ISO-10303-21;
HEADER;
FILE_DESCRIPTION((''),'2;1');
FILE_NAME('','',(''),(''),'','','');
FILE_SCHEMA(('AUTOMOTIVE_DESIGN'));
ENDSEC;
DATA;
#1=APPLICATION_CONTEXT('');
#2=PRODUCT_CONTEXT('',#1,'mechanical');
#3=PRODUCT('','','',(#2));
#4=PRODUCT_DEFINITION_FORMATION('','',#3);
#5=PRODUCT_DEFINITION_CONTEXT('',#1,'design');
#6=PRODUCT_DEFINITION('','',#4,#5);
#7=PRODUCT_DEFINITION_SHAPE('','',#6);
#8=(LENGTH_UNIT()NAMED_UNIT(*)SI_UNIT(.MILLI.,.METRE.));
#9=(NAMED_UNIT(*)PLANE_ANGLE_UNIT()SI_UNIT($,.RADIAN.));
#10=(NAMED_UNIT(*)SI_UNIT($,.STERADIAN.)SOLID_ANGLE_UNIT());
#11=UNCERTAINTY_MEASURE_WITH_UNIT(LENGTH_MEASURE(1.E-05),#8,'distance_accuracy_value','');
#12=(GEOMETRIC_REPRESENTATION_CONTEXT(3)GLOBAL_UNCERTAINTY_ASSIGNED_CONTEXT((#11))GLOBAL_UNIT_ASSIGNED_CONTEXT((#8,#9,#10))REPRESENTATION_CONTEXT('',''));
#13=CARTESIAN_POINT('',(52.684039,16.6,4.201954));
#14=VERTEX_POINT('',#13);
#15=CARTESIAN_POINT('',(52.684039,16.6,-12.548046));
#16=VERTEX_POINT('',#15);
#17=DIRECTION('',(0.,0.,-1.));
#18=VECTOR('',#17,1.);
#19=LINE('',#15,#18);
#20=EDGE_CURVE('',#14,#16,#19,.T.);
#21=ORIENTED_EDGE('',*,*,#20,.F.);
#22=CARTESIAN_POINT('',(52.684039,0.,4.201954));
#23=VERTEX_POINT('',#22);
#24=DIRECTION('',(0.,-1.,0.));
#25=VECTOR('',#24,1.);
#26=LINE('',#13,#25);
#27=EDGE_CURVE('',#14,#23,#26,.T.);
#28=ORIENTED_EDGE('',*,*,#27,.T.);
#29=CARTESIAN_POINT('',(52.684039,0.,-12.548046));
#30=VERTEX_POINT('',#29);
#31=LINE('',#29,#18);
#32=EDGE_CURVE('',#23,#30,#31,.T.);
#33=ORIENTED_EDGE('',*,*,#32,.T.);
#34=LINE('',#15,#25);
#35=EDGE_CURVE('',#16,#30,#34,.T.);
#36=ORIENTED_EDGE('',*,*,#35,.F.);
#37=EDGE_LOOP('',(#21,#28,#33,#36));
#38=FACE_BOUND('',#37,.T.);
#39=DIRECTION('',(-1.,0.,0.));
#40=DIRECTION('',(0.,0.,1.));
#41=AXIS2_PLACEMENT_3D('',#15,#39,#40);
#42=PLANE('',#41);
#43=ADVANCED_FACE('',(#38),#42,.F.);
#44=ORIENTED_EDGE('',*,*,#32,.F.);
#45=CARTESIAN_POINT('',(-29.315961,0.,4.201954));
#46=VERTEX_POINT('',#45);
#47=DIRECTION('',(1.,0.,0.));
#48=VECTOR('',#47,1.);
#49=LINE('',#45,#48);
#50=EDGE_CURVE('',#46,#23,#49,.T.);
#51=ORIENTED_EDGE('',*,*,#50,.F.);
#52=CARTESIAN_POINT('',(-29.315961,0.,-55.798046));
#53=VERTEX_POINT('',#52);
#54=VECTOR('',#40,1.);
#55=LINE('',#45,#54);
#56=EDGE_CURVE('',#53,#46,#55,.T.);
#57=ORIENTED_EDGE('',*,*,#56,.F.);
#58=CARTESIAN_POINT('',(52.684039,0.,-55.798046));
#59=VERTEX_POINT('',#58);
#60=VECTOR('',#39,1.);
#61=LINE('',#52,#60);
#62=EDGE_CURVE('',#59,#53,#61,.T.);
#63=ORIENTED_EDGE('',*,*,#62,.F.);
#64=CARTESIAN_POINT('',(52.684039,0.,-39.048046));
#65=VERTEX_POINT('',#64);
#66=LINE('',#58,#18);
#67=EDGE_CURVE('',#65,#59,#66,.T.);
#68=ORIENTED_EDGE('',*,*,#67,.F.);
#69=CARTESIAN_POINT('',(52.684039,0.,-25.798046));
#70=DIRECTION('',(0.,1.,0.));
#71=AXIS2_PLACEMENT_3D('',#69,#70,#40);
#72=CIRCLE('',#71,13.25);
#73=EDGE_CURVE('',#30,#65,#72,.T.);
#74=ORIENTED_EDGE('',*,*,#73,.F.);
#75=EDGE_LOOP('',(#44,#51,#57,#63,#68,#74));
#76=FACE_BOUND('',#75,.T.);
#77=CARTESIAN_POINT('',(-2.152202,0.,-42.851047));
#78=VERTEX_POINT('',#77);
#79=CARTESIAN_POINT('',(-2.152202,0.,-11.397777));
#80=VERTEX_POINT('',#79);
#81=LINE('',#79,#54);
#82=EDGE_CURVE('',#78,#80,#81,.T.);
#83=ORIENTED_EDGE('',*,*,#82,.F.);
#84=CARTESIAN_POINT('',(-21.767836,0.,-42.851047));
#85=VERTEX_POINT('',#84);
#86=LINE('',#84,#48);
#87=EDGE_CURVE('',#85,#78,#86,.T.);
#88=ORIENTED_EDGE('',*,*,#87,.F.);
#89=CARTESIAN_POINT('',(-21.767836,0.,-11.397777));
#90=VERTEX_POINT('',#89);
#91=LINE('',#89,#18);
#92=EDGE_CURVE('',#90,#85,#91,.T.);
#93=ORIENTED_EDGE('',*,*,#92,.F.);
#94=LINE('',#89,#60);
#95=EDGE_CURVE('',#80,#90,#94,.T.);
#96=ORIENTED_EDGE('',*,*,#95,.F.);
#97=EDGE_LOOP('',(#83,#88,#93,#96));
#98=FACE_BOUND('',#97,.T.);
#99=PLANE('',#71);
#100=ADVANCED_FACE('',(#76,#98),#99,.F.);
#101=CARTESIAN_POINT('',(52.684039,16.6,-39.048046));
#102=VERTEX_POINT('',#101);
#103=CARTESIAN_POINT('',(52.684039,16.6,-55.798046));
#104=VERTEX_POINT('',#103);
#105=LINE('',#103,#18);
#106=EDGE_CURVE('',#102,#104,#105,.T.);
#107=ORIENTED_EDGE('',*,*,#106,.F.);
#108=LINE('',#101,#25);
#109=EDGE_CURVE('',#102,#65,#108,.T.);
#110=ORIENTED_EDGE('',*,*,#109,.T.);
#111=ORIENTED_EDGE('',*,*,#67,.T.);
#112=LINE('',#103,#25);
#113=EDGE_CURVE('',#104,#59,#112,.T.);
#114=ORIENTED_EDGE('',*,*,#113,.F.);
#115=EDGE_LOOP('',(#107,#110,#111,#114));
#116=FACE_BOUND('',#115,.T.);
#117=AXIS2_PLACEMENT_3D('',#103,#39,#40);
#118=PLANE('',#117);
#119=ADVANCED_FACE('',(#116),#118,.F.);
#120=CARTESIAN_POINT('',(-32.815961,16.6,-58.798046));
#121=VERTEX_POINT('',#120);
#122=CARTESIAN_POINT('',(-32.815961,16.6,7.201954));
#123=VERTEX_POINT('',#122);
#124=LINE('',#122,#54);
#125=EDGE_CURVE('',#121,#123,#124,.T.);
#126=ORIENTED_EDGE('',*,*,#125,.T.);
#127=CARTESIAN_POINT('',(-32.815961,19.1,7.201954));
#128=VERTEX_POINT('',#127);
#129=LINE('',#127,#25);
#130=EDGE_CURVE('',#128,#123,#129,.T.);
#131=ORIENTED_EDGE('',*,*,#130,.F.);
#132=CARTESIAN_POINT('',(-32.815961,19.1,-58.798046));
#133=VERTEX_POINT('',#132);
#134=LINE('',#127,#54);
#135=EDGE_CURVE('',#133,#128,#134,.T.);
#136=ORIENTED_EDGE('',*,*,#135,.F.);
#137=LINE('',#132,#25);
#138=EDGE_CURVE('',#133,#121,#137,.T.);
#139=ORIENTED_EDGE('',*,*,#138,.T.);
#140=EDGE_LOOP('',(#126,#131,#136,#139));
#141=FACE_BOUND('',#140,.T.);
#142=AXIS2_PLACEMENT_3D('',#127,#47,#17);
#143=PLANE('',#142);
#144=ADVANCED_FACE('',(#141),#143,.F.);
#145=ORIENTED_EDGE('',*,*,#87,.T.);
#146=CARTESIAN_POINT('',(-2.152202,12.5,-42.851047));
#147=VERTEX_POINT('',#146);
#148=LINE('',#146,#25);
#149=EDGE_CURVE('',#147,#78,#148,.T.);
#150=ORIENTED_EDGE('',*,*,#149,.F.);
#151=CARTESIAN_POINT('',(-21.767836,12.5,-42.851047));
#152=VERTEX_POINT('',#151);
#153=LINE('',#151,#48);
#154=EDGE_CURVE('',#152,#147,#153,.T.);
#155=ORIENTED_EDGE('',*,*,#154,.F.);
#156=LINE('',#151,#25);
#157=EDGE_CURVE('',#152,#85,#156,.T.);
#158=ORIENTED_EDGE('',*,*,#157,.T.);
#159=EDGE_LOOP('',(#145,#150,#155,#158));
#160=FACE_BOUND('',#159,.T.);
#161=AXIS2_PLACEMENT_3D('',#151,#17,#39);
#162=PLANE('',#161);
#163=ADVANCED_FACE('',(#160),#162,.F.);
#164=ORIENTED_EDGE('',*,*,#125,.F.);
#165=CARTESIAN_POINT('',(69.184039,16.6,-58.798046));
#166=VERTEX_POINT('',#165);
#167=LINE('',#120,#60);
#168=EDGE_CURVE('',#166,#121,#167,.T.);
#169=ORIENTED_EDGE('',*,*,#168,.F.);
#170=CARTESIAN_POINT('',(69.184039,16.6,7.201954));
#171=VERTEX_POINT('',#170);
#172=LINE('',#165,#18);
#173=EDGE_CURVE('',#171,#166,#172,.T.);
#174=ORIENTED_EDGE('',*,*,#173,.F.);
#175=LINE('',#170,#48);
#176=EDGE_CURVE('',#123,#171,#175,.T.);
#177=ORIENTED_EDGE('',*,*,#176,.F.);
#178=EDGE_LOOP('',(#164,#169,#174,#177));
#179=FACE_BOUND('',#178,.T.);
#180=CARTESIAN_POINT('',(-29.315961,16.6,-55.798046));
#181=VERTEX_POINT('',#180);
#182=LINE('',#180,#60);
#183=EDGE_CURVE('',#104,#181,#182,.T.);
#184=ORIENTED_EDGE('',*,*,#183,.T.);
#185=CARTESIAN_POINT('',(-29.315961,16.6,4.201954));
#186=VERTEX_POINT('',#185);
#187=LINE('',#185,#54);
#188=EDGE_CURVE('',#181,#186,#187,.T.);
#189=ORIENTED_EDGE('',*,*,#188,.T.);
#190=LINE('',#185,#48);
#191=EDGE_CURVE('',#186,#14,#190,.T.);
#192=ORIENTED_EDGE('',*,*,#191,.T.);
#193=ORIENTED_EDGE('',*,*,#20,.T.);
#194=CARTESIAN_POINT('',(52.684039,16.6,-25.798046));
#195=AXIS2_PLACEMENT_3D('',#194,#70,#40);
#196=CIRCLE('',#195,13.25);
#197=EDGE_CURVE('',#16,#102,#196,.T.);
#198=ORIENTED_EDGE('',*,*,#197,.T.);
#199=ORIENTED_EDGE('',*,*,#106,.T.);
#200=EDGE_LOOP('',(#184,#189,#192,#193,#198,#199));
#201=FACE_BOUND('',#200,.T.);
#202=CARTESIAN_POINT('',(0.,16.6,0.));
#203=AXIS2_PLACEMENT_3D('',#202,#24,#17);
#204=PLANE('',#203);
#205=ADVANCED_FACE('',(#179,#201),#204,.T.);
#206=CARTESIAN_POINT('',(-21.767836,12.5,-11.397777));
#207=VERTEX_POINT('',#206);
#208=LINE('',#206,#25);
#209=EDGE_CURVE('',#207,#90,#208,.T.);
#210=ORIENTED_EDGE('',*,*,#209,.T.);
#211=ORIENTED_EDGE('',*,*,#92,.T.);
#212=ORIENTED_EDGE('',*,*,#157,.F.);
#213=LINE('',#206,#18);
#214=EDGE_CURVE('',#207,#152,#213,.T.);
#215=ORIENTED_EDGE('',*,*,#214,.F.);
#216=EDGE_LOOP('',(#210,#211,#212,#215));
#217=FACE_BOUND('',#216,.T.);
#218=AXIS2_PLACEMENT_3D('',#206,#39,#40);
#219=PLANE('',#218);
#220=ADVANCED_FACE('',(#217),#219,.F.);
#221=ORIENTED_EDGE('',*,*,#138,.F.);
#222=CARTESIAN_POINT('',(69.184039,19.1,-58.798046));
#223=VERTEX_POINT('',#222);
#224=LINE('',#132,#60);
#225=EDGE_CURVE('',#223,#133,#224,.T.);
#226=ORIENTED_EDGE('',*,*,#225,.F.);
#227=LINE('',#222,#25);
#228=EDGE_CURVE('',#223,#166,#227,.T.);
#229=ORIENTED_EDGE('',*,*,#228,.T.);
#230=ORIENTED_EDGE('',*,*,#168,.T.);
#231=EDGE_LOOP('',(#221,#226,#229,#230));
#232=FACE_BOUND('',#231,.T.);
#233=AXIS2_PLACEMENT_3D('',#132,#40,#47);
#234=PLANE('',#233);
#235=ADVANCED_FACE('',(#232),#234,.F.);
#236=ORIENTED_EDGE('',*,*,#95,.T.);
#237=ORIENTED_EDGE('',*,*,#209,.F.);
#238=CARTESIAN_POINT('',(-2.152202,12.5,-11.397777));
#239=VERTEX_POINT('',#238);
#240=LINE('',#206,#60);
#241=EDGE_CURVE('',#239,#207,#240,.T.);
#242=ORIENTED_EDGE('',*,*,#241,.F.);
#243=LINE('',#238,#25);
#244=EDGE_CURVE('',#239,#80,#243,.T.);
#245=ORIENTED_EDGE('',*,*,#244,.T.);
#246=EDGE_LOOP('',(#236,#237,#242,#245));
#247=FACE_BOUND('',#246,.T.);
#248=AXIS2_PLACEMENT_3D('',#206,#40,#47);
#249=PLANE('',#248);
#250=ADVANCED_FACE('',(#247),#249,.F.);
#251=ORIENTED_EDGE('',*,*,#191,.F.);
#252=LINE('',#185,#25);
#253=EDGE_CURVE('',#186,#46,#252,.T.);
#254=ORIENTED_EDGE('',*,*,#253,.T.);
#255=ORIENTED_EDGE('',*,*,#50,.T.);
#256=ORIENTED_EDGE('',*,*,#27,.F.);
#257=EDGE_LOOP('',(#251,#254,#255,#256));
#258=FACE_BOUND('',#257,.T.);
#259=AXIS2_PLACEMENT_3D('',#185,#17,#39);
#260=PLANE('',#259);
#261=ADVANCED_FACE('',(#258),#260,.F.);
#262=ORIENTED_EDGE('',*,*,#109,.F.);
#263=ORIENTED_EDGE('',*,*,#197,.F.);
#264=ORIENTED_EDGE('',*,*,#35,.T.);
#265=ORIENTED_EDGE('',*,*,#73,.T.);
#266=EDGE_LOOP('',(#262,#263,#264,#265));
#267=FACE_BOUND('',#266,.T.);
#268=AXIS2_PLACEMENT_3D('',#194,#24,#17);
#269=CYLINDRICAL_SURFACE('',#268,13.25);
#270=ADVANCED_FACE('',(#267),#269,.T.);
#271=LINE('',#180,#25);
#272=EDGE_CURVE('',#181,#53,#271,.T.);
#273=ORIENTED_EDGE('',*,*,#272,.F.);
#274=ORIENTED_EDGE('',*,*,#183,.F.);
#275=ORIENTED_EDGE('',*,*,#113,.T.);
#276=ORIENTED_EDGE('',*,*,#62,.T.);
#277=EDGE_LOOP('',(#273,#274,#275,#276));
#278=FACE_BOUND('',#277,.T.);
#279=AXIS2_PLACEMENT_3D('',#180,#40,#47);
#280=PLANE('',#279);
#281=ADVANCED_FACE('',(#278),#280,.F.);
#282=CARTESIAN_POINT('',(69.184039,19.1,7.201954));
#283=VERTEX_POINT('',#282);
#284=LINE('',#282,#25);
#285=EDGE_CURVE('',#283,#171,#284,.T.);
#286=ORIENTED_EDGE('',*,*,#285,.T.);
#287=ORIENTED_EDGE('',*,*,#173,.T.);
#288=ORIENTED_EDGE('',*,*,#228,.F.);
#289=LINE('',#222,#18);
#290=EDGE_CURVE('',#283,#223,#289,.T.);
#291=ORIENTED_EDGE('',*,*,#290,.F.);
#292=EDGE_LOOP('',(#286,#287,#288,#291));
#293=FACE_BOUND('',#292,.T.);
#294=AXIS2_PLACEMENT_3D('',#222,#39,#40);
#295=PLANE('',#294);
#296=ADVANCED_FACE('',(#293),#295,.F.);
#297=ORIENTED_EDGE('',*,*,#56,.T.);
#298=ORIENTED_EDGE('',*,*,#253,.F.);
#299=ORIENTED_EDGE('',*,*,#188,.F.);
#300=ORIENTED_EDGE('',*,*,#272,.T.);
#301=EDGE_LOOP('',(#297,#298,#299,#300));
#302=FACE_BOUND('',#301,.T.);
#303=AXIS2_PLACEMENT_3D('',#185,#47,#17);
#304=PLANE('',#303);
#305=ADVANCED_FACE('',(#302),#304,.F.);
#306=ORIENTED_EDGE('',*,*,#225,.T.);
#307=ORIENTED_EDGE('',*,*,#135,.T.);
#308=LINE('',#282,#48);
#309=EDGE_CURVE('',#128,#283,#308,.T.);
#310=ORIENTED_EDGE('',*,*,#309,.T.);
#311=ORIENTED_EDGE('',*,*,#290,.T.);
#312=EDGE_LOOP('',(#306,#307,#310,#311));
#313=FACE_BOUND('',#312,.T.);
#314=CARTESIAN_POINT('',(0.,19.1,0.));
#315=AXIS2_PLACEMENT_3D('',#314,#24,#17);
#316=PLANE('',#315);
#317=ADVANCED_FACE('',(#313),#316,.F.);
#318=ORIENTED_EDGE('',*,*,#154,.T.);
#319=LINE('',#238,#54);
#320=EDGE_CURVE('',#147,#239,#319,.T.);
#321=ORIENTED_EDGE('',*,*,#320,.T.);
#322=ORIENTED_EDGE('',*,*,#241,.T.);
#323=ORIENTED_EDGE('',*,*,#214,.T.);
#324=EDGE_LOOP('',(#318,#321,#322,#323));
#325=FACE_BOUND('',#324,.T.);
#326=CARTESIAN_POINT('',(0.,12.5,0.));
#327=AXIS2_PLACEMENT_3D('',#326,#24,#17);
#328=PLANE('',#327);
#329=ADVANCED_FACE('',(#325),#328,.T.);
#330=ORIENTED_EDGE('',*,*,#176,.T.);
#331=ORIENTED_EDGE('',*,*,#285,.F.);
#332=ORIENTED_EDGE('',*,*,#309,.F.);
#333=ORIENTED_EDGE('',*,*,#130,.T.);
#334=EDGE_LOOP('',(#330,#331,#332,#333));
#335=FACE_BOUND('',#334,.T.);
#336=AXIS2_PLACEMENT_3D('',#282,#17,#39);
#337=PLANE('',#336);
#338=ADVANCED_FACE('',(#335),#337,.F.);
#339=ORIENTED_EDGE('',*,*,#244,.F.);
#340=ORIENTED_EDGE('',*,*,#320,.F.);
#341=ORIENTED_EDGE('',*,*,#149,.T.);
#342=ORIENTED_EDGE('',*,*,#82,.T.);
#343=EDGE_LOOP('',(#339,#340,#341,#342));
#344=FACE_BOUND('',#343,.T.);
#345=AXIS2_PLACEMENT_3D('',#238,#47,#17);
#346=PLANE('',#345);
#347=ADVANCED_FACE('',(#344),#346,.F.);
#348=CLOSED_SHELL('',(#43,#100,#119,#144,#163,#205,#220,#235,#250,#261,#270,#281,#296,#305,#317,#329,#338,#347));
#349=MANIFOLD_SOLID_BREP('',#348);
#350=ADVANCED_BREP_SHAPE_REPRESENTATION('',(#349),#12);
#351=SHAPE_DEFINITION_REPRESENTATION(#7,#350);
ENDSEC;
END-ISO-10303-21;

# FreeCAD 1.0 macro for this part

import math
import FreeCAD as App
import Part
import Sketcher
from FreeCAD import Vector
Q = App.Units.Quantity


def add_polygon(sketch, points):
    """Adds a closed chain of lines whose ends are joined by coincident constraints."""
    first, n = sketch.GeometryCount, len(points)
    for a, b in zip(points, points[1:] + points[:1]):
        sketch.addGeometry(Part.LineSegment(App.Vector(*a, 0), App.Vector(*b, 0)), False)
    for i in range(n):
        sketch.addConstraint(Sketcher.Constraint("Coincident", first + i, 2, first + (i + 1) % n, 1))

doc = App.newDocument("Part")
params = doc.addObject("Spreadsheet::Sheet", "Params")
for row, (alias, value) in enumerate([
    ("sketch1_width", "82 mm"),
    ("sketch1_height", "60 mm"),
    ("sketch1_radius", "13.25 mm"),
    ("pad1_length", "16.6 mm"),
    ("sketch2_width", "102 mm"),
    ("sketch2_height", "66 mm"),
    ("pad2_length", "2.5 mm"),
    ("pocket1_length", "12.5 mm"),
], start=1):
    params.set(f"A{row}", alias)
    params.set(f"B{row}", "=" + value)
    params.setAlias(f"B{row}", alias)

body = doc.addObject("PartDesign::Body", "Body")

sketch1 = body.newObject("Sketcher::SketchObject", "Sketch")
sketch1.AttachmentSupport = (doc.getObject("XZ_Plane"), [""])
sketch1.MapMode = "FlatFace"
sketch1.addGeometry([
    Part.LineSegment(Vector(-29, 4, 0), Vector(53, 4, 0)),
    Part.LineSegment(Vector(53, 4, 0), Vector(53, -13, 0)),
    Part.ArcOfCircle(Part.Circle(Vector(53, -26, 0), Vector(0, 0, 1), 13), math.radians(-90), math.radians(90)),
    Part.LineSegment(Vector(53, -39, 0), Vector(53, -56, 0)),
    Part.LineSegment(Vector(53, -56, 0), Vector(-29, -56, 0)),
    Part.LineSegment(Vector(-29, -56, 0), Vector(-29, 4, 0)),
], False)
sketch1.addConstraint([
    Sketcher.Constraint("Coincident", 0, 2, 1, 1),
    Sketcher.Constraint("Coincident", 1, 2, 2, 2),
    Sketcher.Constraint("Coincident", 2, 1, 3, 1),
    Sketcher.Constraint("Coincident", 3, 2, 4, 1),
    Sketcher.Constraint("Coincident", 4, 2, 5, 1),
    Sketcher.Constraint("Coincident", 5, 2, 0, 1),
    Sketcher.Constraint("Horizontal", 0),
    Sketcher.Constraint("Vertical", 1),
    Sketcher.Constraint("Vertical", 3),
    Sketcher.Constraint("Horizontal", 4),
    Sketcher.Constraint("Vertical", 5),
    Sketcher.Constraint("Vertical", 2, 3, 0, 2),
    Sketcher.Constraint("Vertical", 1, 2, 2, 1),
    Sketcher.Constraint("Equal", 1, 3),
    Sketcher.Constraint("DistanceX", 0, 1, 0, 2, Q("82 mm")),
    Sketcher.Constraint("DistanceY", 5, 1, 5, 2, Q("60 mm")),
    Sketcher.Constraint("Radius", 2, Q("13.25 mm")),
    Sketcher.Constraint("DistanceX", -1, 1, 2, 3, Q("52.684039 mm")),
    Sketcher.Constraint("DistanceY", 2, 3, -1, 1, Q("25.798046 mm")),
])
sketch1.setExpression("Constraints[14]", "Params.sketch1_width")
sketch1.setExpression("Constraints[15]", "Params.sketch1_height")
sketch1.setExpression("Constraints[16]", "Params.sketch1_radius")
pad1 = body.newObject("PartDesign::Pad", "Pad")
pad1.Profile = sketch1
pad1.setExpression("Length", "Params.pad1_length")
pad1.Reversed = True

sketch2 = body.newObject("Sketcher::SketchObject", "Sketch001")
sketch2.AttachmentSupport = (doc.getObject("XZ_Plane"), [""])
sketch2.MapMode = "FlatFace"
sketch2.AttachmentOffset = App.Placement(Vector(0, 0, -16.6), App.Rotation())
add_polygon(sketch2, [(-33, -59), (-33, 7), (69, 7), (69, -59)])
sketch2.addConstraint([
    Sketcher.Constraint("Vertical", 0),
    Sketcher.Constraint("Horizontal", 1),
    Sketcher.Constraint("Vertical", 2),
    Sketcher.Constraint("Horizontal", 3),
    Sketcher.Constraint("DistanceX", 1, 1, 1, 2, Q("102 mm")),
    Sketcher.Constraint("DistanceY", 0, 1, 0, 2, Q("66 mm")),
    Sketcher.Constraint("DistanceX", 0, 2, -1, 1, Q("32.815961 mm")),
    Sketcher.Constraint("DistanceY", -1, 1, 0, 2, Q("7.201954 mm")),
])
sketch2.setExpression("Constraints[8]", "Params.sketch2_width")
sketch2.setExpression("Constraints[9]", "Params.sketch2_height")
pad2 = body.newObject("PartDesign::Pad", "Pad001")
pad2.Profile = sketch2
pad2.setExpression("Length", "Params.pad2_length")
pad2.Reversed = True

sketch3 = body.newObject("Sketcher::SketchObject", "Sketch002")
sketch3.AttachmentSupport = (doc.getObject("XZ_Plane"), [""])
sketch3.MapMode = "FlatFace"
add_polygon(sketch3, [(-22, -11), (-22, -43), (-2, -43), (-2, -11)])
sketch3.addConstraint([
    Sketcher.Constraint("Vertical", 0),
    Sketcher.Constraint("Horizontal", 1),
    Sketcher.Constraint("Vertical", 2),
    Sketcher.Constraint("Horizontal", 3),
    Sketcher.Constraint("DistanceY", 0, 2, 0, 1, Q("31.45327 mm")),
    Sketcher.Constraint("DistanceX", 1, 1, 1, 2, Q("19.615634 mm")),
    Sketcher.Constraint("DistanceX", 0, 2, -1, 1, Q("21.767836 mm")),
    Sketcher.Constraint("DistanceY", 0, 2, -1, 1, Q("42.851047 mm")),
])
pocket1 = body.newObject("PartDesign::Pocket", "Pocket")
pocket1.Profile = sketch3
pocket1.setExpression("Length", "Params.pocket1_length")

doc.recompute()
